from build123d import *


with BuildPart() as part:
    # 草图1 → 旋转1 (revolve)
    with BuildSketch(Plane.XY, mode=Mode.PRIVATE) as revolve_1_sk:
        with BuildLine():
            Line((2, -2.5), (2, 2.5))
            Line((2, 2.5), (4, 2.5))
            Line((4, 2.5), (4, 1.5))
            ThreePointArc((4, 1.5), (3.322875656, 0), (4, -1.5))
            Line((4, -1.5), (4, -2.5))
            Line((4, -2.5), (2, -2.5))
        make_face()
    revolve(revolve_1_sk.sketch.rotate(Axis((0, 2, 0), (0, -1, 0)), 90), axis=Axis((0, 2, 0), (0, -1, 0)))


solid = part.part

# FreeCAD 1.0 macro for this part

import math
import FreeCAD as App
import Part
import Sketcher

doc = App.newDocument("Part")
body = doc.addObject("PartDesign::Body", "Body")

sketch1 = body.newObject("Sketcher::SketchObject", "Sketch")
sketch1.AttachmentSupport = (doc.getObject("XY_Plane"), [""])
sketch1.MapMode = "FlatFace"
sketch1.addGeometry(Part.LineSegment(App.Vector(2, 2.5, 0), App.Vector(2, -2.5, 0)), False)
sketch1.addGeometry(Part.LineSegment(App.Vector(2, -2.5, 0), App.Vector(4, -2.5, 0)), False)
sketch1.addGeometry(Part.LineSegment(App.Vector(4, -2.5, 0), App.Vector(4, -1.5, 0)), False)
sketch1.addGeometry(Part.ArcOfCircle(Part.Circle(App.Vector(5.3, 0, 0), App.Vector(0, 0, 1), 2), math.radians(131), math.radians(229)), False)
sketch1.addGeometry(Part.LineSegment(App.Vector(4, 1.5, 0), App.Vector(4, 2.5, 0)), False)
sketch1.addGeometry(Part.LineSegment(App.Vector(4, 2.5, 0), App.Vector(2, 2.5, 0)), False)
sketch1.addConstraint(Sketcher.Constraint("Coincident", 0, 2, 1, 1))
sketch1.addConstraint(Sketcher.Constraint("Coincident", 1, 2, 2, 1))
sketch1.addConstraint(Sketcher.Constraint("Coincident", 2, 2, 3, 2))
sketch1.addConstraint(Sketcher.Constraint("Coincident", 3, 1, 4, 1))
sketch1.addConstraint(Sketcher.Constraint("Coincident", 4, 2, 5, 1))
sketch1.addConstraint(Sketcher.Constraint("Coincident", 5, 2, 0, 1))
sketch1.addConstraint(Sketcher.Constraint("Vertical", 0))
sketch1.addConstraint(Sketcher.Constraint("Horizontal", 1))
sketch1.addConstraint(Sketcher.Constraint("Vertical", 2))
sketch1.addConstraint(Sketcher.Constraint("Vertical", 4))
sketch1.addConstraint(Sketcher.Constraint("Horizontal", 5))
sketch1.addConstraint(Sketcher.Constraint("Symmetric", 2, 2, 3, 1, -1))
sketch1.addConstraint(Sketcher.Constraint("Equal", 2, 4))
sketch1.addConstraint(Sketcher.Constraint("Radius", 3, 2.0))
sketch1.addConstraint(Sketcher.Constraint("DistanceX", 1, 1, 1, 2, 2.0))
sketch1.addConstraint(Sketcher.Constraint("DistanceY", 0, 2, 0, 1, 5.0))
sketch1.addConstraint(Sketcher.Constraint("DistanceY", 2, 1, 2, 2, 1.0))
sketch1.addConstraint(Sketcher.Constraint("DistanceX", -1, 1, 0, 2, 2.0))
revolution = body.newObject("PartDesign::Revolution", "Revolution")
revolution.Profile = sketch1
revolution.ReferenceAxis = (sketch1, ["V_Axis"])
revolution.Angle = 360

doc.recompute()
